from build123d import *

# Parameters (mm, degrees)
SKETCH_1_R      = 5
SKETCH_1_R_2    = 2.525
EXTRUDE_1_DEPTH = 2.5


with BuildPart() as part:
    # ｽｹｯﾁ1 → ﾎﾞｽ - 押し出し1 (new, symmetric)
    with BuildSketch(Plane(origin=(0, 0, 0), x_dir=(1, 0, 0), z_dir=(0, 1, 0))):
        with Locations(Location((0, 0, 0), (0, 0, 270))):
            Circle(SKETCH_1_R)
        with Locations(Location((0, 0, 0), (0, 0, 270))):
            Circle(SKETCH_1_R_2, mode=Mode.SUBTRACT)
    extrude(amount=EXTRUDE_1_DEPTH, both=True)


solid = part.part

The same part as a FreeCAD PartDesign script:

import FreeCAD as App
import Part
import Sketcher
from FreeCAD import Vector
Q = App.Units.Quantity

doc = App.newDocument("Part")
body = doc.addObject("PartDesign::Body", "Body")

# Sketch on XZ plane
sketch1 = body.newObject("Sketcher::SketchObject", "Sketch")
sketch1.AttachmentSupport = (doc.getObject("XZ_Plane"), [""])
sketch1.MapMode = "FlatFace"
sketch1.addGeometry([
    Part.Circle(Vector(0, 0, 0), Vector(0, 0, 1), 5),
    Part.Circle(Vector(0, 0, 0), Vector(0, 0, 1), 2.5),
], False)
sketch1.addConstraint([
    Sketcher.Constraint("Coincident", 0, 3, -1, 1),
    Sketcher.Constraint("Coincident", 1, 3, -1, 1),
    Sketcher.Constraint("Diameter", 0, Q("10 mm")),
    Sketcher.Constraint("Diameter", 1, Q("5.05 mm")),
])
pad1 = body.newObject("PartDesign::Pad", "Pad")
pad1.Profile = sketch1
pad1.Length = 5
pad1.Midplane = True

doc.recompute()
